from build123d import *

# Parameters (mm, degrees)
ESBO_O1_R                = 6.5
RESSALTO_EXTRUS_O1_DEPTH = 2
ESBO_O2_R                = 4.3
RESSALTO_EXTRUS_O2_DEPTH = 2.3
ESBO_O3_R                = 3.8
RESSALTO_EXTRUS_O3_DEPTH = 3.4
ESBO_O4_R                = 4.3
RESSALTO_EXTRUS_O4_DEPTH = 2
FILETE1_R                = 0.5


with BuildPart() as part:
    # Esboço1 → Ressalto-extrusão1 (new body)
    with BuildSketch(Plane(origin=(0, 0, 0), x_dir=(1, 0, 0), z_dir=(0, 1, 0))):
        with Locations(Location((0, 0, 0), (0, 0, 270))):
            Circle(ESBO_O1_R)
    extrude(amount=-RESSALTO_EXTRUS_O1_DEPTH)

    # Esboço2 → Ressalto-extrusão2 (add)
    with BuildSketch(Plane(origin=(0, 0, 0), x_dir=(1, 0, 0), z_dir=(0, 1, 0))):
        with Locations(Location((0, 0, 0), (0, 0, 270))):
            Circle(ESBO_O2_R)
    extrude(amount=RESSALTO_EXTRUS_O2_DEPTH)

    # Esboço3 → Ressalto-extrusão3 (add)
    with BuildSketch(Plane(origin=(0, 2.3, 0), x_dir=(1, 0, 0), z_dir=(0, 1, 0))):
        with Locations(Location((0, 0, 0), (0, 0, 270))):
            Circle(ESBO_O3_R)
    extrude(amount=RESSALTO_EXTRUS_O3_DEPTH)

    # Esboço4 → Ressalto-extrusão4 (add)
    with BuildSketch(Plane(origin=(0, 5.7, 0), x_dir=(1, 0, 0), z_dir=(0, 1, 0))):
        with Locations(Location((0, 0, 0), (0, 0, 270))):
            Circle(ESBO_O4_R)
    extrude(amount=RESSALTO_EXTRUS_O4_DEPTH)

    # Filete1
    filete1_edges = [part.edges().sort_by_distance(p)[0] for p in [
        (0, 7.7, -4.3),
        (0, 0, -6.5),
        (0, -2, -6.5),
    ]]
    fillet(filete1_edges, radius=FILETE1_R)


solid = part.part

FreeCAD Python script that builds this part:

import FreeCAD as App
import Part
import Sketcher


def edges_at(feature, points):
    """Names of the edges that pass closest to the given points."""
    edges = feature.Shape.Edges
    near = lambda p: min(range(len(edges)), key=lambda i: edges[i].distToShape(Part.Vertex(*p))[0])
    return sorted({f"Edge{near(p) + 1}" for p in points})

doc = App.newDocument("Part")
body = doc.addObject("PartDesign::Body", "Body")

# Sketch on XZ plane
sketch1 = doc.addObject("Sketcher::SketchObject", "Sketch")
body.addObject(sketch1)
sketch1.AttachmentSupport = (doc.XZ_Plane, [""])
sketch1.MapMode = "FlatFace"
sketch1.addGeometry(Part.Circle(App.Vector(0, 0, 0), App.Vector(0, 0, 1), 6.5), False)
sketch1.addConstraint([
    Sketcher.Constraint("Coincident", 0, 3, -1, 1),
    Sketcher.Constraint("Diameter", 0, 13.0),
])
pad1 = doc.addObject("PartDesign::Pad", "Pad")
body.addObject(pad1)
pad1.Profile = sketch1
pad1.Length = 2

# Sketch on XZ plane
sketch2 = doc.addObject("Sketcher::SketchObject", "Sketch001")
body.addObject(sketch2)
sketch2.AttachmentSupport = (doc.XZ_Plane, [""])
sketch2.MapMode = "FlatFace"
sketch2.addGeometry(Part.Circle(App.Vector(0, 0, 0), App.Vector(0, 0, 1), 4.3), False)
sketch2.addConstraint([
    Sketcher.Constraint("Coincident", 0, 3, -1, 1),
    Sketcher.Constraint("Diameter", 0, 8.6),
])
pad2 = doc.addObject("PartDesign::Pad", "Pad001")
body.addObject(pad2)
pad2.Profile = sketch2
pad2.Length = 2.3
pad2.Reversed = True

# Sketch on XZ plane
sketch3 = doc.addObject("Sketcher::SketchObject", "Sketch002")
body.addObject(sketch3)
sketch3.AttachmentSupport = (doc.XZ_Plane, [""])
sketch3.MapMode = "FlatFace"
sketch3.AttachmentOffset = App.Placement(App.Vector(0, 0, -2.3), App.Rotation())
sketch3.addGeometry(Part.Circle(App.Vector(0, 0, 0), App.Vector(0, 0, 1), 3.8), False)
sketch3.addConstraint([
    Sketcher.Constraint("Coincident", 0, 3, -1, 1),
    Sketcher.Constraint("Diameter", 0, 7.6),
])
pad3 = doc.addObject("PartDesign::Pad", "Pad002")
body.addObject(pad3)
pad3.Profile = sketch3
pad3.Length = 3.4
pad3.Reversed = True

# Sketch on XZ plane
sketch4 = doc.addObject("Sketcher::SketchObject", "Sketch003")
body.addObject(sketch4)
sketch4.AttachmentSupport = (doc.XZ_Plane, [""])
sketch4.MapMode = "FlatFace"
sketch4.AttachmentOffset = App.Placement(App.Vector(0, 0, -5.7), App.Rotation())
sketch4.addGeometry(Part.Circle(App.Vector(0, 0, 0), App.Vector(0, 0, 1), 4.3), False)
sketch4.addConstraint([
    Sketcher.Constraint("Coincident", 0, 3, -1, 1),
    Sketcher.Constraint("Diameter", 0, 8.6),
])
pad4 = doc.addObject("PartDesign::Pad", "Pad003")
body.addObject(pad4)
pad4.Profile = sketch4
pad4.Length = 2
pad4.Reversed = True
doc.recompute()

fillet = doc.addObject("PartDesign::Fillet", "Fillet")
body.addObject(fillet)
fillet.Base = (pad4, edges_at(pad4, [(0, 7.7, -4.3), (0, 0, -6.5), (0, -2, -6.5)]))
fillet.Radius = 0.5

doc.recompute()
